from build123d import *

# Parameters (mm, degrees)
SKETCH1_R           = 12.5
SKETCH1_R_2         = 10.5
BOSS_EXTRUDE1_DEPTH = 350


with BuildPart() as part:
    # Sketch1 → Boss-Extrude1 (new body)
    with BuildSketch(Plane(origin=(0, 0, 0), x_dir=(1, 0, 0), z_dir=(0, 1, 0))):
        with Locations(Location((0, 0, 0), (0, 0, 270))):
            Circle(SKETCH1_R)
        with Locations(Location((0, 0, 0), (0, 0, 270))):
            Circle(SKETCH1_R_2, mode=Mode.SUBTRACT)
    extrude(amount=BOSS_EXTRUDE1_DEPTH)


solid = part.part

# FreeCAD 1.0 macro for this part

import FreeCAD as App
import Part
import Sketcher
from FreeCAD import Vector
Q = App.Units.Quantity

doc = App.newDocument("Part")
body = doc.addObject("PartDesign::Body", "Body")

# Sketch on XZ plane
sketch1 = body.newObject("Sketcher::SketchObject", "Sketch")
sketch1.AttachmentSupport = (doc.getObject("XZ_Plane"), [""])
sketch1.MapMode = "FlatFace"
sketch1.addGeometry([
    Part.Circle(Vector(0, 0, 0), Vector(0, 0, 1), 12),
    Part.Circle(Vector(0, 0, 0), Vector(0, 0, 1), 10),
], False)
sketch1.addConstraint([
    Sketcher.Constraint("Coincident", 0, 3, -1, 1),
    Sketcher.Constraint("Coincident", 1, 3, -1, 1),
    Sketcher.Constraint("Diameter", 0, Q("25 mm")),
    Sketcher.Constraint("Diameter", 1, Q("21 mm")),
])
pad1 = body.newObject("PartDesign::Pad", "Pad")
pad1.Profile = sketch1
pad1.Length = 350
pad1.Reversed = True

doc.recompute()
